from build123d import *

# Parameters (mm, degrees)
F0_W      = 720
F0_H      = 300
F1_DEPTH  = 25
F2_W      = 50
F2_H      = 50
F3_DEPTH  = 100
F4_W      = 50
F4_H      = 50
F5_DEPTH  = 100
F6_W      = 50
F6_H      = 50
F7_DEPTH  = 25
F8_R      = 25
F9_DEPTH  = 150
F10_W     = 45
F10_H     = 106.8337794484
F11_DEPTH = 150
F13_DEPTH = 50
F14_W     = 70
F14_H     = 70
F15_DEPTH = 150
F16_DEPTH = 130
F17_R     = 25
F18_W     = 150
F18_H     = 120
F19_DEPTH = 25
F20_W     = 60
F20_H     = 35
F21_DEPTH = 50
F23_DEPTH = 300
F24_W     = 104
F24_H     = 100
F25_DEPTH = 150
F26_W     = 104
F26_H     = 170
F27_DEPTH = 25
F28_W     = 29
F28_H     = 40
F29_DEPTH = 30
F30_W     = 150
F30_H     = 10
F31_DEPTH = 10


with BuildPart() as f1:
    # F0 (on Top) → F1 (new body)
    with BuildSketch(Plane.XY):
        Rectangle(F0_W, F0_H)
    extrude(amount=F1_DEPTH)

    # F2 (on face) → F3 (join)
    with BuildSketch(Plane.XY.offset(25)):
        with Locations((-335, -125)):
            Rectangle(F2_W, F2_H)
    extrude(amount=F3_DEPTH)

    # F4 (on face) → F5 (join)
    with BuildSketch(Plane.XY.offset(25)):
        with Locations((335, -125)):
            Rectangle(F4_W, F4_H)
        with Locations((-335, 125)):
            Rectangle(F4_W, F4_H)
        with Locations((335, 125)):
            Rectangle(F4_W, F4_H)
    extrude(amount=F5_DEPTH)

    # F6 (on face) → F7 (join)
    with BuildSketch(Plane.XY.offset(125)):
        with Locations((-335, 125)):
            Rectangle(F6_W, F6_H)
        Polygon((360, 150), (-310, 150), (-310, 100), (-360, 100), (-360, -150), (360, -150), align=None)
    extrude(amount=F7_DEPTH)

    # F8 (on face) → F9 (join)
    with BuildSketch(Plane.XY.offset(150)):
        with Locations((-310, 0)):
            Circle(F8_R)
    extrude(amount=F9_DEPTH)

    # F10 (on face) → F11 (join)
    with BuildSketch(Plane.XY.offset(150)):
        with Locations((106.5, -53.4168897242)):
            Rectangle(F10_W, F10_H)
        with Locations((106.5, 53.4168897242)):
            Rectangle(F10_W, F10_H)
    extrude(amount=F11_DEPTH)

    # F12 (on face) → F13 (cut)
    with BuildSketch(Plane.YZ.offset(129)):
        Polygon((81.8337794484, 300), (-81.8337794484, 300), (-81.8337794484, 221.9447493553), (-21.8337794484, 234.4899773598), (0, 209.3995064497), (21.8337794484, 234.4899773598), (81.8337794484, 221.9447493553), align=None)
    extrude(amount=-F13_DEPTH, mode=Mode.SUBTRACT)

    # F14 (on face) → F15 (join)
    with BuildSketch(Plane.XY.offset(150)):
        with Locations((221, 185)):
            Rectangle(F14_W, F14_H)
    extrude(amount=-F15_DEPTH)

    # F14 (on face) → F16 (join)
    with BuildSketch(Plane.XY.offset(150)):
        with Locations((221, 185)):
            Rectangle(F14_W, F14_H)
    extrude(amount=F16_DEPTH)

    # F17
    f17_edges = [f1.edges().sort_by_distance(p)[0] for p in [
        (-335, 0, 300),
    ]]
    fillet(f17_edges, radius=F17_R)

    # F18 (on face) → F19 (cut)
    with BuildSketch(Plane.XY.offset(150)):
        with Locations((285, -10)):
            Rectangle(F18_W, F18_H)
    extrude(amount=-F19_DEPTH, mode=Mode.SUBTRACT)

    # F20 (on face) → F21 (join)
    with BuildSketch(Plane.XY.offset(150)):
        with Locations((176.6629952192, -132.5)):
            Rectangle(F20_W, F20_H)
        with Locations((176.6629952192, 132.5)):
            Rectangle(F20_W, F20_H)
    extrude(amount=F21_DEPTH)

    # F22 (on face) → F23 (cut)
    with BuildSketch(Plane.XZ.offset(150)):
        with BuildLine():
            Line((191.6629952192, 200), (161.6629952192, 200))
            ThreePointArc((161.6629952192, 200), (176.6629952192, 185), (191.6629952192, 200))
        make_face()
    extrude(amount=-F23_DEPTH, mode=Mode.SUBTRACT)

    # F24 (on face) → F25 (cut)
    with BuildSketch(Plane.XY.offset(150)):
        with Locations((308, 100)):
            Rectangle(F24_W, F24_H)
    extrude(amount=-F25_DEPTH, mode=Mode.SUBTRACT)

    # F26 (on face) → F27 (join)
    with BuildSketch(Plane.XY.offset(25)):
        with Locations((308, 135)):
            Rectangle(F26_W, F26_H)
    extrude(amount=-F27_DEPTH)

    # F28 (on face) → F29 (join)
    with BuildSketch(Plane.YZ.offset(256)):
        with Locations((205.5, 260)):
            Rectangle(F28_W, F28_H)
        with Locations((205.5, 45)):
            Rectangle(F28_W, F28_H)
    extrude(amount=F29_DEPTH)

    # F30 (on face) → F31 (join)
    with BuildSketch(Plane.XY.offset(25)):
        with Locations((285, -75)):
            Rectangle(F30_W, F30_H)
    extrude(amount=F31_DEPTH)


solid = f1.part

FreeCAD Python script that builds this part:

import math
import FreeCAD as App
import Part
import Sketcher
from FreeCAD import Vector


def edges_at(feature, points):
    """Names of the edges that pass closest to the given points."""
    edges = feature.Shape.Edges
    near = lambda p: min(range(len(edges)), key=lambda i: edges[i].distToShape(Part.Vertex(*p))[0])
    return sorted({f"Edge{near(p) + 1}" for p in points})


def add_polygon(sketch, points):
    """Adds a closed chain of lines whose ends are joined by coincident constraints."""
    first, n = sketch.GeometryCount, len(points)
    for a, b in zip(points, points[1:] + points[:1]):
        sketch.addGeometry(Part.LineSegment(App.Vector(*a, 0), App.Vector(*b, 0)), False)
    for i in range(n):
        sketch.addConstraint(Sketcher.Constraint("Coincident", first + i, 2, first + (i + 1) % n, 1))

doc = App.newDocument("Part")
body = doc.addObject("PartDesign::Body", "Body")

sketch1 = doc.addObject("Sketcher::SketchObject", "Sketch")
body.addObject(sketch1)
sketch1.AttachmentSupport = (doc.XY_Plane, [""])
sketch1.MapMode = "FlatFace"
add_polygon(sketch1, [(-360, 150), (-360, -150), (360, -150), (360, 150)])
sketch1.addConstraint([
    Sketcher.Constraint("Vertical", 0),
    Sketcher.Constraint("Horizontal", 1),
    Sketcher.Constraint("Vertical", 2),
    Sketcher.Constraint("Horizontal", 3),
    Sketcher.Constraint("Symmetric", 0, 2, 2, 2, -1, 1),
    Sketcher.Constraint("DistanceX", 1, 1, 1, 2, 720.0),
    Sketcher.Constraint("DistanceY", 0, 2, 0, 1, 300.0),
])
pad1 = doc.addObject("PartDesign::Pad", "Pad")
body.addObject(pad1)
pad1.Profile = sketch1
pad1.Length = 25

sketch2 = doc.addObject("Sketcher::SketchObject", "Sketch001")
body.addObject(sketch2)
sketch2.AttachmentSupport = (doc.XY_Plane, [""])
sketch2.MapMode = "FlatFace"
sketch2.AttachmentOffset = App.Placement(Vector(0, 0, 25), App.Rotation())
add_polygon(sketch2, [(-360, -100), (-360, -150), (-310, -150), (-310, -100)])
sketch2.addConstraint([
    Sketcher.Constraint("Vertical", 0),
    Sketcher.Constraint("Horizontal", 1),
    Sketcher.Constraint("Vertical", 2),
    Sketcher.Constraint("Horizontal", 3),
    Sketcher.Constraint("Equal", 3, 0),
    Sketcher.Constraint("DistanceX", 1, 1, 1, 2, 50.0),
    Sketcher.Constraint("DistanceX", 0, 2, -1, 1, 360.0),
    Sketcher.Constraint("DistanceY", 0, 2, -1, 1, 150.0),
])
pad2 = doc.addObject("PartDesign::Pad", "Pad001")
body.addObject(pad2)
pad2.Profile = sketch2
pad2.Length = 100

sketch3 = doc.addObject("Sketcher::SketchObject", "Sketch002")
body.addObject(sketch3)
sketch3.AttachmentSupport = (doc.XY_Plane, [""])
sketch3.MapMode = "FlatFace"
sketch3.AttachmentOffset = App.Placement(Vector(0, 0, 25), App.Rotation())
add_polygon(sketch3, [(310, -100), (310, -150), (360, -150), (360, -100)])
add_polygon(sketch3, [(-360, 150), (-360, 100), (-310, 100), (-310, 150)])
add_polygon(sketch3, [(310, 150), (310, 100), (360, 100), (360, 150)])
sketch3.addConstraint([
    Sketcher.Constraint("Vertical", 0),
    Sketcher.Constraint("Horizontal", 1),
    Sketcher.Constraint("Vertical", 2),
    Sketcher.Constraint("Horizontal", 3),
    Sketcher.Constraint("Vertical", 4),
    Sketcher.Constraint("Horizontal", 5),
    Sketcher.Constraint("Vertical", 6),
    Sketcher.Constraint("Horizontal", 7),
    Sketcher.Constraint("Vertical", 8),
    Sketcher.Constraint("Horizontal", 9),
    Sketcher.Constraint("Vertical", 10),
    Sketcher.Constraint("Horizontal", 11),
    Sketcher.Constraint("Symmetric", 2, 2, 4, 2, -1, 1),
    Sketcher.Constraint("Symmetric", 0, 2, 6, 2, -1, 1),
    Sketcher.Constraint("Symmetric", 5, 2, 8, 2, -2),
    Sketcher.Constraint("Symmetric", 7, 2, 10, 2, -2),
    Sketcher.Constraint("Equal", 11, 0),
    Sketcher.Constraint("DistanceX", 1, 1, 1, 2, 50.0),
    Sketcher.Constraint("DistanceX", -1, 1, 0, 2, 310.0),
    Sketcher.Constraint("DistanceY", 0, 2, -1, 1, 150.0),
])
pad3 = doc.addObject("PartDesign::Pad", "Pad002")
body.addObject(pad3)
pad3.Profile = sketch3
pad3.Length = 100

sketch4 = doc.addObject("Sketcher::SketchObject", "Sketch003")
body.addObject(sketch4)
sketch4.AttachmentSupport = (doc.XY_Plane, [""])
sketch4.MapMode = "FlatFace"
sketch4.AttachmentOffset = App.Placement(Vector(0, 0, 125), App.Rotation())
add_polygon(sketch4, [(-360, 150), (-360, -150), (360, -150), (360, 150)])
sketch4.addConstraint([
    Sketcher.Constraint("Vertical", 0),
    Sketcher.Constraint("Horizontal", 1),
    Sketcher.Constraint("Vertical", 2),
    Sketcher.Constraint("Horizontal", 3),
    Sketcher.Constraint("Symmetric", 0, 2, 2, 2, -1, 1),
    Sketcher.Constraint("DistanceX", 1, 1, 1, 2, 720.0),
    Sketcher.Constraint("DistanceY", 0, 2, 0, 1, 300.0),
])
pad4 = doc.addObject("PartDesign::Pad", "Pad003")
body.addObject(pad4)
pad4.Profile = sketch4
pad4.Length = 25

sketch5 = doc.addObject("Sketcher::SketchObject", "Sketch004")
body.addObject(sketch5)
sketch5.AttachmentSupport = (doc.XY_Plane, [""])
sketch5.MapMode = "FlatFace"
sketch5.AttachmentOffset = App.Placement(Vector(0, 0, 150), App.Rotation())
sketch5.addGeometry(Part.Circle(Vector(-310, 0, 0), Vector(0, 0, 1), 25), False)
sketch5.addConstraint([
    Sketcher.Constraint("PointOnObject", 0, 3, -1),
    Sketcher.Constraint("Diameter", 0, 50.0),
    Sketcher.Constraint("DistanceX", 0, 3, -1, 1, 310.0),
])
pad5 = doc.addObject("PartDesign::Pad", "Pad004")
body.addObject(pad5)
pad5.Profile = sketch5
pad5.Length = 150

sketch6 = doc.addObject("Sketcher::SketchObject", "Sketch005")
body.addObject(sketch6)
sketch6.AttachmentSupport = (doc.XY_Plane, [""])
sketch6.MapMode = "FlatFace"
sketch6.AttachmentOffset = App.Placement(Vector(0, 0, 150), App.Rotation())
add_polygon(sketch6, [(84, -106.833779), (129, -106.833779), (129, 106.833779), (84, 106.833779)])
sketch6.addConstraint([
    Sketcher.Constraint("Horizontal", 0),
    Sketcher.Constraint("Vertical", 1),
    Sketcher.Constraint("Horizontal", 2),
    Sketcher.Constraint("Vertical", 3),
    Sketcher.Constraint("DistanceX", 0, 1, 0, 2, 45.0),
    Sketcher.Constraint("DistanceX", -1, 1, 0, 2, 129.0),
    Sketcher.Constraint("DistanceY", 1, 1, 1, 2, 213.667559),
    Sketcher.Constraint("DistanceY", 0, 2, -1, 1, 106.833779),
])
pad6 = doc.addObject("PartDesign::Pad", "Pad005")
body.addObject(pad6)
pad6.Profile = sketch6
pad6.Length = 150

sketch7 = doc.addObject("Sketcher::SketchObject", "Sketch006")
body.addObject(sketch7)
sketch7.AttachmentSupport = (doc.YZ_Plane, [""])
sketch7.MapMode = "FlatFace"
sketch7.AttachmentOffset = App.Placement(Vector(0, 0, 129), App.Rotation())
add_polygon(sketch7, [(81.833779, 300), (-81.833779, 300), (-81.833779, 221.944749), (-21.833779, 234.489977), (0, 209.399506), (21.833779, 234.489977), (81.833779, 221.944749)])
sketch7.addConstraint([
    Sketcher.Constraint("Horizontal", 0),
    Sketcher.Constraint("Vertical", 1),
    Sketcher.Constraint("Vertical", 6),
    Sketcher.Constraint("Symmetric", 2, 2, 4, 2, -2),
    Sketcher.Constraint("Symmetric", 1, 2, 5, 2, -2),
    Sketcher.Constraint("PointOnObject", 3, 2, -2),
    Sketcher.Constraint("DistanceY", -1, 1, 0, 2, 300.0),
    Sketcher.Constraint("DistanceX", 1, 2, 2, 2, 60.0),
    Sketcher.Constraint("DistanceX", 0, 2, 0, 1, 163.667559),
    Sketcher.Constraint("DistanceY", 1, 2, 1, 1, 78.055251),
    Sketcher.Constraint("Distance", 3, 33.260271),
    Sketcher.Constraint("DistanceY", 1, 2, 2, 2, 12.545228),
])
pocket1 = doc.addObject("PartDesign::Pocket", "Pocket")
body.addObject(pocket1)
pocket1.Profile = sketch7
pocket1.Length = 50

sketch8 = doc.addObject("Sketcher::SketchObject", "Sketch007")
body.addObject(sketch8)
sketch8.AttachmentSupport = (doc.XY_Plane, [""])
sketch8.MapMode = "FlatFace"
sketch8.AttachmentOffset = App.Placement(Vector(0, 0, 150), App.Rotation())
add_polygon(sketch8, [(186, 220), (186, 150), (256, 150), (256, 220)])
sketch8.addConstraint([
    Sketcher.Constraint("Vertical", 0),
    Sketcher.Constraint("Horizontal", 1),
    Sketcher.Constraint("Vertical", 2),
    Sketcher.Constraint("Horizontal", 3),
    Sketcher.Constraint("Equal", 3, 0),
    Sketcher.Constraint("DistanceX", 1, 1, 1, 2, 70.0),
    Sketcher.Constraint("DistanceX", -1, 1, 0, 2, 186.0),
    Sketcher.Constraint("DistanceY", -1, 1, 0, 2, 150.0),
])
pad7 = doc.addObject("PartDesign::Pad", "Pad006")
body.addObject(pad7)
pad7.Profile = sketch8
pad7.Length = 150
pad7.Reversed = True

sketch9 = doc.addObject("Sketcher::SketchObject", "Sketch008")
body.addObject(sketch9)
sketch9.AttachmentSupport = (doc.XY_Plane, [""])
sketch9.MapMode = "FlatFace"
sketch9.AttachmentOffset = App.Placement(Vector(0, 0, 150), App.Rotation())
add_polygon(sketch9, [(186, 220), (186, 150), (256, 150), (256, 220)])
sketch9.addConstraint([
    Sketcher.Constraint("Vertical", 0),
    Sketcher.Constraint("Horizontal", 1),
    Sketcher.Constraint("Vertical", 2),
    Sketcher.Constraint("Horizontal", 3),
    Sketcher.Constraint("Equal", 3, 0),
    Sketcher.Constraint("DistanceX", 1, 1, 1, 2, 70.0),
    Sketcher.Constraint("DistanceX", -1, 1, 0, 2, 186.0),
    Sketcher.Constraint("DistanceY", -1, 1, 0, 2, 150.0),
])
pad8 = doc.addObject("PartDesign::Pad", "Pad007")
body.addObject(pad8)
pad8.Profile = sketch9
pad8.Length = 130
doc.recompute()

fillet = doc.addObject("PartDesign::Fillet", "Fillet")
body.addObject(fillet)
fillet.Base = (pad8, edges_at(pad8, [(-335, 0, 300)]))
fillet.Radius = 25

sketch10 = doc.addObject("Sketcher::SketchObject", "Sketch009")
body.addObject(sketch10)
sketch10.AttachmentSupport = (doc.XY_Plane, [""])
sketch10.MapMode = "FlatFace"
sketch10.AttachmentOffset = App.Placement(Vector(0, 0, 150), App.Rotation())
add_polygon(sketch10, [(210, 50), (210, -70), (360, -70), (360, 50)])
sketch10.addConstraint([
    Sketcher.Constraint("Vertical", 0),
    Sketcher.Constraint("Horizontal", 1),
    Sketcher.Constraint("Vertical", 2),
    Sketcher.Constraint("Horizontal", 3),
    Sketcher.Constraint("DistanceX", 1, 1, 1, 2, 150.0),
    Sketcher.Constraint("DistanceY", 0, 2, 0, 1, 120.0),
    Sketcher.Constraint("DistanceX", -1, 1, 0, 2, 210.0),
    Sketcher.Constraint("DistanceY", 0, 2, -1, 1, 70.0),
])
pocket2 = doc.addObject("PartDesign::Pocket", "Pocket001")
body.addObject(pocket2)
pocket2.Profile = sketch10
pocket2.Length = 25

sketch11 = doc.addObject("Sketcher::SketchObject", "Sketch010")
body.addObject(sketch11)
sketch11.AttachmentSupport = (doc.XY_Plane, [""])
sketch11.MapMode = "FlatFace"
sketch11.AttachmentOffset = App.Placement(Vector(0, 0, 150), App.Rotation())
add_polygon(sketch11, [(146.662995, -115), (146.662995, -150), (206.662995, -150), (206.662995, -115)])
add_polygon(sketch11, [(146.662995, 150), (146.662995, 115), (206.662995, 115), (206.662995, 150)])
sketch11.addConstraint([
    Sketcher.Constraint("Vertical", 0),
    Sketcher.Constraint("Horizontal", 1),
    Sketcher.Constraint("Vertical", 2),
    Sketcher.Constraint("Horizontal", 3),
    Sketcher.Constraint("Vertical", 4),
    Sketcher.Constraint("Horizontal", 5),
    Sketcher.Constraint("Vertical", 6),
    Sketcher.Constraint("Horizontal", 7),
    Sketcher.Constraint("Symmetric", 3, 2, 4, 2, -1),
    Sketcher.Constraint("Symmetric", 1, 2, 6, 2, -1),
    Sketcher.Constraint("DistanceX", 1, 1, 1, 2, 60.0),
    Sketcher.Constraint("DistanceY", 0, 2, 0, 1, 35.0),
    Sketcher.Constraint("DistanceY", 0, 2, -1, 1, 150.0),
    Sketcher.Constraint("DistanceX", -1, 1, 0, 2, 146.662995),
])
pad9 = doc.addObject("PartDesign::Pad", "Pad008")
body.addObject(pad9)
pad9.Profile = sketch11
pad9.Length = 50

sketch12 = doc.addObject("Sketcher::SketchObject", "Sketch011")
body.addObject(sketch12)
sketch12.AttachmentSupport = (doc.XZ_Plane, [""])
sketch12.MapMode = "FlatFace"
sketch12.AttachmentOffset = App.Placement(Vector(0, 0, 150), App.Rotation())
sketch12.addGeometry([
    Part.LineSegment(Vector(191.662995, 200, 0), Vector(161.662995, 200, 0)),
    Part.ArcOfCircle(Part.Circle(Vector(176.662995, 200, 0), Vector(0, 0, 1), 15), math.radians(180), math.radians(360)),
], False)
sketch12.addConstraint([
    Sketcher.Constraint("Coincident", 0, 1, 1, 2),
    Sketcher.Constraint("Coincident", 1, 1, 0, 2),
    Sketcher.Constraint("Horizontal", 0),
    Sketcher.Constraint("Horizontal", 1, 3, 0, 1),
    Sketcher.Constraint("Radius", 1, 15.0),
    Sketcher.Constraint("DistanceY", -1, 1, 1, 3, 200.0),
    Sketcher.Constraint("DistanceX", -1, 1, 1, 3, 176.662995),
])
pocket3 = doc.addObject("PartDesign::Pocket", "Pocket002")
body.addObject(pocket3)
pocket3.Profile = sketch12
pocket3.Length = 300

sketch13 = doc.addObject("Sketcher::SketchObject", "Sketch012")
body.addObject(sketch13)
sketch13.AttachmentSupport = (doc.XY_Plane, [""])
sketch13.MapMode = "FlatFace"
sketch13.AttachmentOffset = App.Placement(Vector(0, 0, 150), App.Rotation())
add_polygon(sketch13, [(256, 150), (256, 50), (360, 50), (360, 150)])
sketch13.addConstraint([
    Sketcher.Constraint("Vertical", 0),
    Sketcher.Constraint("Horizontal", 1),
    Sketcher.Constraint("Vertical", 2),
    Sketcher.Constraint("Horizontal", 3),
    Sketcher.Constraint("DistanceX", 1, 1, 1, 2, 104.0),
    Sketcher.Constraint("DistanceY", 0, 2, 0, 1, 100.0),
    Sketcher.Constraint("DistanceX", -1, 1, 0, 2, 256.0),
    Sketcher.Constraint("DistanceY", -1, 1, 0, 2, 50.0),
])
pocket4 = doc.addObject("PartDesign::Pocket", "Pocket003")
body.addObject(pocket4)
pocket4.Profile = sketch13
pocket4.Length = 150

sketch14 = doc.addObject("Sketcher::SketchObject", "Sketch013")
body.addObject(sketch14)
sketch14.AttachmentSupport = (doc.XY_Plane, [""])
sketch14.MapMode = "FlatFace"
sketch14.AttachmentOffset = App.Placement(Vector(0, 0, 25), App.Rotation())
add_polygon(sketch14, [(256, 220), (256, 50), (360, 50), (360, 220)])
sketch14.addConstraint([
    Sketcher.Constraint("Vertical", 0),
    Sketcher.Constraint("Horizontal", 1),
    Sketcher.Constraint("Vertical", 2),
    Sketcher.Constraint("Horizontal", 3),
    Sketcher.Constraint("DistanceX", 1, 1, 1, 2, 104.0),
    Sketcher.Constraint("DistanceY", 0, 2, 0, 1, 170.0),
    Sketcher.Constraint("DistanceX", -1, 1, 0, 2, 256.0),
    Sketcher.Constraint("DistanceY", -1, 1, 0, 2, 50.0),
])
pad10 = doc.addObject("PartDesign::Pad", "Pad009")
body.addObject(pad10)
pad10.Profile = sketch14
pad10.Length = 25
pad10.Reversed = True

sketch15 = doc.addObject("Sketcher::SketchObject", "Sketch014")
body.addObject(sketch15)
sketch15.AttachmentSupport = (doc.YZ_Plane, [""])
sketch15.MapMode = "FlatFace"
sketch15.AttachmentOffset = App.Placement(Vector(0, 0, 256), App.Rotation())
add_polygon(sketch15, [(191, 280), (191, 240), (220, 240), (220, 280)])
add_polygon(sketch15, [(191, 65), (191, 25), (220, 25), (220, 65)])
sketch15.addConstraint([
    Sketcher.Constraint("Vertical", 0),
    Sketcher.Constraint("Horizontal", 1),
    Sketcher.Constraint("Vertical", 2),
    Sketcher.Constraint("Horizontal", 3),
    Sketcher.Constraint("Vertical", 4),
    Sketcher.Constraint("Horizontal", 5),
    Sketcher.Constraint("Vertical", 6),
    Sketcher.Constraint("Horizontal", 7),
    Sketcher.Constraint("Vertical", 3, 2, 4, 2),
    Sketcher.Constraint("Vertical", 2, 2, 5, 2),
    Sketcher.Constraint("Equal", 2, 4),
    Sketcher.Constraint("DistanceX", 1, 1, 1, 2, 29.0),
    Sketcher.Constraint("DistanceY", 0, 2, 0, 1, 40.0),
    Sketcher.Constraint("DistanceX", -1, 1, 0, 2, 191.0),
    Sketcher.Constraint("DistanceY", -1, 1, 0, 2, 240.0),
    Sketcher.Constraint("DistanceY", -1, 1, 4, 2, 25.0),
])
pad11 = doc.addObject("PartDesign::Pad", "Pad010")
body.addObject(pad11)
pad11.Profile = sketch15
pad11.Length = 30

sketch16 = doc.addObject("Sketcher::SketchObject", "Sketch015")
body.addObject(sketch16)
sketch16.AttachmentSupport = (doc.XY_Plane, [""])
sketch16.MapMode = "FlatFace"
sketch16.AttachmentOffset = App.Placement(Vector(0, 0, 25), App.Rotation())
add_polygon(sketch16, [(210, -70), (210, -80), (360, -80), (360, -70)])
sketch16.addConstraint([
    Sketcher.Constraint("Vertical", 0),
    Sketcher.Constraint("Horizontal", 1),
    Sketcher.Constraint("Vertical", 2),
    Sketcher.Constraint("Horizontal", 3),
    Sketcher.Constraint("DistanceX", 1, 1, 1, 2, 150.0),
    Sketcher.Constraint("DistanceY", 0, 2, 0, 1, 10.0),
    Sketcher.Constraint("DistanceX", -1, 1, 0, 2, 210.0),
    Sketcher.Constraint("DistanceY", 0, 2, -1, 1, 80.0),
])
pad12 = doc.addObject("PartDesign::Pad", "Pad011")
body.addObject(pad12)
pad12.Profile = sketch16
pad12.Length = 10

doc.recompute()
